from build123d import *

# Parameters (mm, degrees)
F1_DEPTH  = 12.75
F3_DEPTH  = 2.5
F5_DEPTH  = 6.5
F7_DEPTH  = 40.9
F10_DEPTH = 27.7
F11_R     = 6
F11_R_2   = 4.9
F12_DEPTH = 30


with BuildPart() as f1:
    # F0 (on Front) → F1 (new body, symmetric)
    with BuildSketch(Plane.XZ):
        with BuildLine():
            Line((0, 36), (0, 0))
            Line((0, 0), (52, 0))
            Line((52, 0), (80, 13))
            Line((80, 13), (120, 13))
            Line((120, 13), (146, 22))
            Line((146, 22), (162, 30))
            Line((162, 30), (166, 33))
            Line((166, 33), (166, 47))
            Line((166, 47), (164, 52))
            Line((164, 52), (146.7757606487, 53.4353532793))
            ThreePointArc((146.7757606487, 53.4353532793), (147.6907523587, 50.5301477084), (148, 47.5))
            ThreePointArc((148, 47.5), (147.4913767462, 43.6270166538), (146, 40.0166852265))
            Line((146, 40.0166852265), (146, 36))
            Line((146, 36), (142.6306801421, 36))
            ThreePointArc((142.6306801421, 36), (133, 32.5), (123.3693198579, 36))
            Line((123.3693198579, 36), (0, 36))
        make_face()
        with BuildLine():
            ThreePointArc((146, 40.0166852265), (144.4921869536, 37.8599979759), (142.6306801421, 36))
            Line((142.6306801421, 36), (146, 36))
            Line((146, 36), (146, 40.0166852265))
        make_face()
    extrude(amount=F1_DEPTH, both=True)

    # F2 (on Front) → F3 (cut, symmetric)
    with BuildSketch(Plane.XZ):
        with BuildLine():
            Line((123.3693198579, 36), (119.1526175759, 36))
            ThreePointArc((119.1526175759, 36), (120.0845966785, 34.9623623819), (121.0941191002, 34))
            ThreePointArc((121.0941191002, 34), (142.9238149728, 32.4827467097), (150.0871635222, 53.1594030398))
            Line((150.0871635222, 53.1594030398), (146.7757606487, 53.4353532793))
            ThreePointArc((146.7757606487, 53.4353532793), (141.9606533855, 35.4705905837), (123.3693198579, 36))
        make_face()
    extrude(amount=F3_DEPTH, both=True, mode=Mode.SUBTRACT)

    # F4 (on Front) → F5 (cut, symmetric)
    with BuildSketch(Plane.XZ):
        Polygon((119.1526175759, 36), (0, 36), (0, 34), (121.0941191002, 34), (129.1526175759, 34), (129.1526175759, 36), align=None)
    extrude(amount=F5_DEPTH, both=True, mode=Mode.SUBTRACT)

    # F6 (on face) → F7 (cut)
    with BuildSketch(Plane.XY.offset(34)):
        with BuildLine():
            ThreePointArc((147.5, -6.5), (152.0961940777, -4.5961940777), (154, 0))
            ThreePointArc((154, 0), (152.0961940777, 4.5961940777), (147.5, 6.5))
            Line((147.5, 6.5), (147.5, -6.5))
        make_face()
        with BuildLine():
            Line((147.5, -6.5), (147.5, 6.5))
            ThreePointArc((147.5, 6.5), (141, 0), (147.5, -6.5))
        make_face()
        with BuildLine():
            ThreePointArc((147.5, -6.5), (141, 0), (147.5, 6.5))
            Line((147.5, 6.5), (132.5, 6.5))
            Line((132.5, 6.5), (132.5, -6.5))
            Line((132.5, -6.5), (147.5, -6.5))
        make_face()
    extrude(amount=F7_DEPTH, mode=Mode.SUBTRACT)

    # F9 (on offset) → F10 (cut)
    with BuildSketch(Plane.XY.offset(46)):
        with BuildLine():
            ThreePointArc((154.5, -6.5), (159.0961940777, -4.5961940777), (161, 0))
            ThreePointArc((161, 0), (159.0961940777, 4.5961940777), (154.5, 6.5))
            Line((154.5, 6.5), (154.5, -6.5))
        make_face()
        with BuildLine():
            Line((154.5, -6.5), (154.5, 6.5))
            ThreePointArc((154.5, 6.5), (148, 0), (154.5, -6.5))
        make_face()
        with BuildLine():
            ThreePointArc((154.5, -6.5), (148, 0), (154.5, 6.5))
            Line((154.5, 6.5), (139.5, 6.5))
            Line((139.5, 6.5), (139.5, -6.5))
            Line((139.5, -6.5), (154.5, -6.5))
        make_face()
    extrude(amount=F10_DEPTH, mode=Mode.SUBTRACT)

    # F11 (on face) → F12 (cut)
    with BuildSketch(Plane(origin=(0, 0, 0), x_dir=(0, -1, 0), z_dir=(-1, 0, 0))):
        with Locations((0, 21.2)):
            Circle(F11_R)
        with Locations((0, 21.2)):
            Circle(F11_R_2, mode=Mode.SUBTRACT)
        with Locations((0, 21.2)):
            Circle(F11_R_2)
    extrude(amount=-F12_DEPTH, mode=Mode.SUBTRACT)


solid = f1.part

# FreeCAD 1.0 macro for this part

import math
import FreeCAD as App
import Part
import Sketcher
Q = App.Units.Quantity

doc = App.newDocument("Part")
body = doc.addObject("PartDesign::Body", "Body")

sketch1 = body.newObject("Sketcher::SketchObject", "Sketch")
sketch1.AttachmentSupport = (doc.getObject("XZ_Plane"), [""])
sketch1.MapMode = "FlatFace"
sketch1.addGeometry([
    Part.LineSegment(App.Vector(0, 36, 0), App.Vector(0, 0, 0)),
    Part.LineSegment(App.Vector(0, 0, 0), App.Vector(52, 0, 0)),
    Part.LineSegment(App.Vector(52, 0, 0), App.Vector(80, 13, 0)),
    Part.LineSegment(App.Vector(80, 13, 0), App.Vector(120, 13, 0)),
    Part.LineSegment(App.Vector(120, 13, 0), App.Vector(146, 22, 0)),
    Part.LineSegment(App.Vector(146, 22, 0), App.Vector(162, 30, 0)),
    Part.LineSegment(App.Vector(162, 30, 0), App.Vector(166, 33, 0)),
    Part.LineSegment(App.Vector(166, 33, 0), App.Vector(166, 47, 0)),
    Part.LineSegment(App.Vector(166, 47, 0), App.Vector(164, 52, 0)),
    Part.LineSegment(App.Vector(164, 52, 0), App.Vector(147, 53, 0)),
    Part.ArcOfCircle(Part.Circle(App.Vector(133, 48, 0), App.Vector(0, 0, 1), 15), math.radians(0), math.radians(23)),
    Part.ArcOfCircle(Part.Circle(App.Vector(133, 48, 0), App.Vector(0, 0, 1), 15), math.radians(-30), math.radians(0)),
    Part.ArcOfCircle(Part.Circle(App.Vector(133, 47, 0), App.Vector(0, 0, 1), 15), math.radians(-50), math.radians(-30)),
    Part.ArcOfCircle(Part.Circle(App.Vector(133, 48, 0), App.Vector(0, 0, 1), 15), math.radians(-130), math.radians(-50)),
    Part.LineSegment(App.Vector(123, 36, 0), App.Vector(0, 36, 0)),
], False)
sketch1.addConstraint([
    Sketcher.Constraint("Coincident", 0, 2, 1, 1),
    Sketcher.Constraint("Coincident", 1, 2, 2, 1),
    Sketcher.Constraint("Coincident", 2, 2, 3, 1),
    Sketcher.Constraint("Coincident", 3, 2, 4, 1),
    Sketcher.Constraint("Coincident", 4, 2, 5, 1),
    Sketcher.Constraint("Coincident", 5, 2, 6, 1),
    Sketcher.Constraint("Coincident", 6, 2, 7, 1),
    Sketcher.Constraint("Coincident", 7, 2, 8, 1),
    Sketcher.Constraint("Coincident", 8, 2, 9, 1),
    Sketcher.Constraint("Coincident", 9, 2, 10, 2),
    Sketcher.Constraint("Tangent", 10, 1, 11, 2),
    Sketcher.Constraint("Tangent", 11, 1, 12, 2),
    Sketcher.Constraint("Tangent", 12, 1, 13, 2),
    Sketcher.Constraint("Coincident", 13, 1, 14, 1),
    Sketcher.Constraint("Coincident", 14, 2, 0, 1),
    Sketcher.Constraint("Vertical", 0),
    Sketcher.Constraint("Horizontal", 1),
    Sketcher.Constraint("Horizontal", 3),
    Sketcher.Constraint("Vertical", 7),
    Sketcher.Constraint("Horizontal", 14),
    Sketcher.Constraint("Coincident", 0, 2, -1, 1),
    Sketcher.Constraint("Coincident", 12, 3, 10, 3),
    Sketcher.Constraint("Equal", 12, 13),
    Sketcher.Constraint("Horizontal", 13, 3, 10, 1),
    Sketcher.Constraint("Horizontal", 12, 1, 13, 1),
    Sketcher.Constraint("Vertical", 4, 2, 11, 1),
    Sketcher.Constraint("Radius", 10, Q("15 mm")),
    Sketcher.Constraint("DistanceX", 1, 1, 1, 2, Q("52 mm")),
    Sketcher.Constraint("DistanceX", 3, 1, 3, 2, Q("40 mm")),
    Sketcher.Constraint("DistanceY", 0, 2, 0, 1, Q("36 mm")),
    Sketcher.Constraint("DistanceY", 7, 1, 7, 2, Q("14 mm")),
    Sketcher.Constraint("Distance", 6, Q("5 mm")),
    Sketcher.Constraint("DistanceX", -1, 1, 10, 3, Q("133 mm")),
    Sketcher.Constraint("DistanceX", -1, 1, 2, 2, Q("80 mm")),
    Sketcher.Constraint("DistanceY", -1, 1, 2, 2, Q("13 mm")),
    Sketcher.Constraint("DistanceX", -1, 1, 4, 2, Q("146 mm")),
    Sketcher.Constraint("DistanceY", -1, 1, 4, 2, Q("22 mm")),
    Sketcher.Constraint("DistanceX", -1, 1, 5, 2, Q("162 mm")),
    Sketcher.Constraint("DistanceY", -1, 1, 5, 2, Q("30 mm")),
    Sketcher.Constraint("DistanceX", -1, 1, 6, 2, Q("166 mm")),
    Sketcher.Constraint("DistanceX", -1, 1, 8, 2, Q("164 mm")),
    Sketcher.Constraint("DistanceY", -1, 1, 8, 2, Q("52 mm")),
    Sketcher.Constraint("DistanceY", -1, 1, 10, 3, Q("47.5 mm")),
    Sketcher.Constraint("DistanceX", -1, 1, 9, 2, Q("146.775761 mm")),
])
pad1 = body.newObject("PartDesign::Pad", "Pad")
pad1.Profile = sketch1
pad1.Length = 25.5
pad1.Midplane = True

sketch2 = body.newObject("Sketcher::SketchObject", "Sketch001")
sketch2.AttachmentSupport = (doc.getObject("XZ_Plane"), [""])
sketch2.MapMode = "FlatFace"
sketch2.addGeometry([
    Part.LineSegment(App.Vector(123.4, 36, 0), App.Vector(119.2, 36, 0)),
    Part.ArcOfCircle(Part.Circle(App.Vector(133, 47.5, 0), App.Vector(0, 0, 1), 18), math.radians(-140.29), math.radians(-131.41)),
    Part.ArcOfCircle(Part.Circle(App.Vector(133, 47.5, 0), App.Vector(0, 0, 1), 18), math.radians(-131), math.radians(18)),
    Part.LineSegment(App.Vector(150.1, 53.2, 0), App.Vector(146.8, 53.4, 0)),
    Part.ArcOfCircle(Part.Circle(App.Vector(133, 47.5, 0), App.Vector(0, 0, 1), 15), math.radians(-130), math.radians(23)),
], False)
sketch2.addConstraint([
    Sketcher.Constraint("Coincident", 0, 2, 1, 1),
    Sketcher.Constraint("Tangent", 1, 2, 2, 1),
    Sketcher.Constraint("Coincident", 2, 2, 3, 1),
    Sketcher.Constraint("Coincident", 3, 2, 4, 2),
    Sketcher.Constraint("Coincident", 4, 1, 0, 1),
    Sketcher.Constraint("Horizontal", 0),
    Sketcher.Constraint("Coincident", 4, 3, 1, 3),
    Sketcher.Constraint("Equal", 1, 2),
    Sketcher.Constraint("Radius", 1, Q("18 mm")),
    Sketcher.Constraint("Radius", 4, Q("15 mm")),
    Sketcher.Constraint("DistanceX", -1, 1, 1, 3, Q("133 mm")),
    Sketcher.Constraint("DistanceY", -1, 1, 0, 2, Q("36 mm")),
    Sketcher.Constraint("DistanceY", -1, 1, 1, 2, Q("34 mm")),
    Sketcher.Constraint("DistanceY", -1, 1, 1, 3, Q("47.5 mm")),
    Sketcher.Constraint("Distance", 3, Q("3.322881 mm")),
    Sketcher.Constraint("DistanceX", -1, 1, 3, 2, Q("146.775761 mm")),
])
pocket1 = body.newObject("PartDesign::Pocket", "Pocket")
pocket1.Profile = sketch2
pocket1.Length = 5
pocket1.Midplane = True

sketch3 = body.newObject("Sketcher::SketchObject", "Sketch002")
sketch3.AttachmentSupport = (doc.getObject("XZ_Plane"), [""])
sketch3.MapMode = "FlatFace"
sketch3.addGeometry([
    Part.LineSegment(App.Vector(0, 36, 0), App.Vector(0, 34, 0)),
    Part.LineSegment(App.Vector(0, 34, 0), App.Vector(129.2, 34, 0)),
    Part.LineSegment(App.Vector(129.2, 34, 0), App.Vector(129.2, 36, 0)),
    Part.LineSegment(App.Vector(129.2, 36, 0), App.Vector(0, 36, 0)),
], False)
sketch3.addConstraint([
    Sketcher.Constraint("Coincident", 0, 2, 1, 1),
    Sketcher.Constraint("Coincident", 1, 2, 2, 1),
    Sketcher.Constraint("Coincident", 2, 2, 3, 1),
    Sketcher.Constraint("Coincident", 3, 2, 0, 1),
    Sketcher.Constraint("Vertical", 0),
    Sketcher.Constraint("Horizontal", 1),
    Sketcher.Constraint("Vertical", 2),
    Sketcher.Constraint("Horizontal", 3),
    Sketcher.Constraint("PointOnObject", 0, 2, -2),
    Sketcher.Constraint("DistanceY", 0, 2, 0, 1, Q("2 mm")),
    Sketcher.Constraint("DistanceY", -1, 1, 0, 2, Q("34 mm")),
    Sketcher.Constraint("DistanceX", 1, 1, 1, 2, Q("129.152618 mm")),
])
pocket2 = body.newObject("PartDesign::Pocket", "Pocket001")
pocket2.Profile = sketch3
pocket2.Length = 13
pocket2.Midplane = True

sketch4 = body.newObject("Sketcher::SketchObject", "Sketch003")
sketch4.AttachmentSupport = (doc.getObject("XY_Plane"), [""])
sketch4.MapMode = "FlatFace"
sketch4.AttachmentOffset = App.Placement(App.Vector(0, 0, 34), App.Rotation())
sketch4.addGeometry([
    Part.ArcOfCircle(Part.Circle(App.Vector(148, 0, 0), App.Vector(0, 0, 1), 6), math.radians(-90), math.radians(0)),
    Part.ArcOfCircle(Part.Circle(App.Vector(148, 0, 0), App.Vector(0, 0, 1), 6), math.radians(0), math.radians(90)),
    Part.LineSegment(App.Vector(148, 6, 0), App.Vector(132, 6, 0)),
    Part.LineSegment(App.Vector(132, 6, 0), App.Vector(132, -6, 0)),
    Part.LineSegment(App.Vector(132, -6, 0), App.Vector(148, -6, 0)),
], False)
sketch4.addConstraint([
    Sketcher.Constraint("Tangent", 0, 2, 1, 1),
    Sketcher.Constraint("Tangent", 1, 2, 2, 1),
    Sketcher.Constraint("Coincident", 2, 2, 3, 1),
    Sketcher.Constraint("Coincident", 3, 2, 4, 1),
    Sketcher.Constraint("Tangent", 4, 2, 0, 1),
    Sketcher.Constraint("Horizontal", 2),
    Sketcher.Constraint("Vertical", 3),
    Sketcher.Constraint("Horizontal", 4),
    Sketcher.Constraint("Equal", 0, 1),
    Sketcher.Constraint("PointOnObject", 0, 3, -1),
    Sketcher.Constraint("PointOnObject", 0, 2, -1),
    Sketcher.Constraint("Radius", 0, Q("6.5 mm")),
    Sketcher.Constraint("DistanceX", 2, 2, 2, 1, Q("15 mm")),
    Sketcher.Constraint("DistanceX", -1, 1, 0, 2, Q("154 mm")),
])
pocket3 = body.newObject("PartDesign::Pocket", "Pocket002")
pocket3.Profile = sketch4
pocket3.Length = 40.9
pocket3.Reversed = True

sketch5 = body.newObject("Sketcher::SketchObject", "Sketch004")
sketch5.AttachmentSupport = (doc.getObject("XY_Plane"), [""])
sketch5.MapMode = "FlatFace"
sketch5.AttachmentOffset = App.Placement(App.Vector(0, 0, 46), App.Rotation())
sketch5.addGeometry([
    Part.ArcOfCircle(Part.Circle(App.Vector(154, 0, 0), App.Vector(0, 0, 1), 6), math.radians(-90), math.radians(0)),
    Part.ArcOfCircle(Part.Circle(App.Vector(154, 0, 0), App.Vector(0, 0, 1), 6), math.radians(0), math.radians(90)),
    Part.LineSegment(App.Vector(154, 6, 0), App.Vector(140, 6, 0)),
    Part.LineSegment(App.Vector(140, 6, 0), App.Vector(140, -6, 0)),
    Part.LineSegment(App.Vector(140, -6, 0), App.Vector(154, -6, 0)),
], False)
sketch5.addConstraint([
    Sketcher.Constraint("Tangent", 0, 2, 1, 1),
    Sketcher.Constraint("Tangent", 1, 2, 2, 1),
    Sketcher.Constraint("Coincident", 2, 2, 3, 1),
    Sketcher.Constraint("Coincident", 3, 2, 4, 1),
    Sketcher.Constraint("Tangent", 4, 2, 0, 1),
    Sketcher.Constraint("Horizontal", 2),
    Sketcher.Constraint("Vertical", 3),
    Sketcher.Constraint("Horizontal", 4),
    Sketcher.Constraint("Equal", 0, 1),
    Sketcher.Constraint("PointOnObject", 0, 3, -1),
    Sketcher.Constraint("PointOnObject", 0, 2, -1),
    Sketcher.Constraint("Radius", 0, Q("6.5 mm")),
    Sketcher.Constraint("DistanceX", 2, 2, 2, 1, Q("15 mm")),
    Sketcher.Constraint("DistanceX", -1, 1, 0, 2, Q("161 mm")),
])
pocket4 = body.newObject("PartDesign::Pocket", "Pocket003")
pocket4.Profile = sketch5
pocket4.Length = 27.7
pocket4.Reversed = True

sketch6 = body.newObject("Sketcher::SketchObject", "Sketch005")
sketch6.AttachmentSupport = (doc.getObject("YZ_Plane"), [""])
sketch6.MapMode = "FlatFace"
sketch6.addGeometry(Part.Circle(App.Vector(0, 21, 0), App.Vector(0, 0, 1), 6), False)
sketch6.addConstraint([
    Sketcher.Constraint("PointOnObject", 0, 3, -2),
    Sketcher.Constraint("Diameter", 0, Q("12 mm")),
    Sketcher.Constraint("DistanceY", -1, 1, 0, 3, Q("21.2 mm")),
])
pocket5 = body.newObject("PartDesign::Pocket", "Pocket004")
pocket5.Profile = sketch6
pocket5.Length = 30
pocket5.Reversed = True

doc.recompute()
